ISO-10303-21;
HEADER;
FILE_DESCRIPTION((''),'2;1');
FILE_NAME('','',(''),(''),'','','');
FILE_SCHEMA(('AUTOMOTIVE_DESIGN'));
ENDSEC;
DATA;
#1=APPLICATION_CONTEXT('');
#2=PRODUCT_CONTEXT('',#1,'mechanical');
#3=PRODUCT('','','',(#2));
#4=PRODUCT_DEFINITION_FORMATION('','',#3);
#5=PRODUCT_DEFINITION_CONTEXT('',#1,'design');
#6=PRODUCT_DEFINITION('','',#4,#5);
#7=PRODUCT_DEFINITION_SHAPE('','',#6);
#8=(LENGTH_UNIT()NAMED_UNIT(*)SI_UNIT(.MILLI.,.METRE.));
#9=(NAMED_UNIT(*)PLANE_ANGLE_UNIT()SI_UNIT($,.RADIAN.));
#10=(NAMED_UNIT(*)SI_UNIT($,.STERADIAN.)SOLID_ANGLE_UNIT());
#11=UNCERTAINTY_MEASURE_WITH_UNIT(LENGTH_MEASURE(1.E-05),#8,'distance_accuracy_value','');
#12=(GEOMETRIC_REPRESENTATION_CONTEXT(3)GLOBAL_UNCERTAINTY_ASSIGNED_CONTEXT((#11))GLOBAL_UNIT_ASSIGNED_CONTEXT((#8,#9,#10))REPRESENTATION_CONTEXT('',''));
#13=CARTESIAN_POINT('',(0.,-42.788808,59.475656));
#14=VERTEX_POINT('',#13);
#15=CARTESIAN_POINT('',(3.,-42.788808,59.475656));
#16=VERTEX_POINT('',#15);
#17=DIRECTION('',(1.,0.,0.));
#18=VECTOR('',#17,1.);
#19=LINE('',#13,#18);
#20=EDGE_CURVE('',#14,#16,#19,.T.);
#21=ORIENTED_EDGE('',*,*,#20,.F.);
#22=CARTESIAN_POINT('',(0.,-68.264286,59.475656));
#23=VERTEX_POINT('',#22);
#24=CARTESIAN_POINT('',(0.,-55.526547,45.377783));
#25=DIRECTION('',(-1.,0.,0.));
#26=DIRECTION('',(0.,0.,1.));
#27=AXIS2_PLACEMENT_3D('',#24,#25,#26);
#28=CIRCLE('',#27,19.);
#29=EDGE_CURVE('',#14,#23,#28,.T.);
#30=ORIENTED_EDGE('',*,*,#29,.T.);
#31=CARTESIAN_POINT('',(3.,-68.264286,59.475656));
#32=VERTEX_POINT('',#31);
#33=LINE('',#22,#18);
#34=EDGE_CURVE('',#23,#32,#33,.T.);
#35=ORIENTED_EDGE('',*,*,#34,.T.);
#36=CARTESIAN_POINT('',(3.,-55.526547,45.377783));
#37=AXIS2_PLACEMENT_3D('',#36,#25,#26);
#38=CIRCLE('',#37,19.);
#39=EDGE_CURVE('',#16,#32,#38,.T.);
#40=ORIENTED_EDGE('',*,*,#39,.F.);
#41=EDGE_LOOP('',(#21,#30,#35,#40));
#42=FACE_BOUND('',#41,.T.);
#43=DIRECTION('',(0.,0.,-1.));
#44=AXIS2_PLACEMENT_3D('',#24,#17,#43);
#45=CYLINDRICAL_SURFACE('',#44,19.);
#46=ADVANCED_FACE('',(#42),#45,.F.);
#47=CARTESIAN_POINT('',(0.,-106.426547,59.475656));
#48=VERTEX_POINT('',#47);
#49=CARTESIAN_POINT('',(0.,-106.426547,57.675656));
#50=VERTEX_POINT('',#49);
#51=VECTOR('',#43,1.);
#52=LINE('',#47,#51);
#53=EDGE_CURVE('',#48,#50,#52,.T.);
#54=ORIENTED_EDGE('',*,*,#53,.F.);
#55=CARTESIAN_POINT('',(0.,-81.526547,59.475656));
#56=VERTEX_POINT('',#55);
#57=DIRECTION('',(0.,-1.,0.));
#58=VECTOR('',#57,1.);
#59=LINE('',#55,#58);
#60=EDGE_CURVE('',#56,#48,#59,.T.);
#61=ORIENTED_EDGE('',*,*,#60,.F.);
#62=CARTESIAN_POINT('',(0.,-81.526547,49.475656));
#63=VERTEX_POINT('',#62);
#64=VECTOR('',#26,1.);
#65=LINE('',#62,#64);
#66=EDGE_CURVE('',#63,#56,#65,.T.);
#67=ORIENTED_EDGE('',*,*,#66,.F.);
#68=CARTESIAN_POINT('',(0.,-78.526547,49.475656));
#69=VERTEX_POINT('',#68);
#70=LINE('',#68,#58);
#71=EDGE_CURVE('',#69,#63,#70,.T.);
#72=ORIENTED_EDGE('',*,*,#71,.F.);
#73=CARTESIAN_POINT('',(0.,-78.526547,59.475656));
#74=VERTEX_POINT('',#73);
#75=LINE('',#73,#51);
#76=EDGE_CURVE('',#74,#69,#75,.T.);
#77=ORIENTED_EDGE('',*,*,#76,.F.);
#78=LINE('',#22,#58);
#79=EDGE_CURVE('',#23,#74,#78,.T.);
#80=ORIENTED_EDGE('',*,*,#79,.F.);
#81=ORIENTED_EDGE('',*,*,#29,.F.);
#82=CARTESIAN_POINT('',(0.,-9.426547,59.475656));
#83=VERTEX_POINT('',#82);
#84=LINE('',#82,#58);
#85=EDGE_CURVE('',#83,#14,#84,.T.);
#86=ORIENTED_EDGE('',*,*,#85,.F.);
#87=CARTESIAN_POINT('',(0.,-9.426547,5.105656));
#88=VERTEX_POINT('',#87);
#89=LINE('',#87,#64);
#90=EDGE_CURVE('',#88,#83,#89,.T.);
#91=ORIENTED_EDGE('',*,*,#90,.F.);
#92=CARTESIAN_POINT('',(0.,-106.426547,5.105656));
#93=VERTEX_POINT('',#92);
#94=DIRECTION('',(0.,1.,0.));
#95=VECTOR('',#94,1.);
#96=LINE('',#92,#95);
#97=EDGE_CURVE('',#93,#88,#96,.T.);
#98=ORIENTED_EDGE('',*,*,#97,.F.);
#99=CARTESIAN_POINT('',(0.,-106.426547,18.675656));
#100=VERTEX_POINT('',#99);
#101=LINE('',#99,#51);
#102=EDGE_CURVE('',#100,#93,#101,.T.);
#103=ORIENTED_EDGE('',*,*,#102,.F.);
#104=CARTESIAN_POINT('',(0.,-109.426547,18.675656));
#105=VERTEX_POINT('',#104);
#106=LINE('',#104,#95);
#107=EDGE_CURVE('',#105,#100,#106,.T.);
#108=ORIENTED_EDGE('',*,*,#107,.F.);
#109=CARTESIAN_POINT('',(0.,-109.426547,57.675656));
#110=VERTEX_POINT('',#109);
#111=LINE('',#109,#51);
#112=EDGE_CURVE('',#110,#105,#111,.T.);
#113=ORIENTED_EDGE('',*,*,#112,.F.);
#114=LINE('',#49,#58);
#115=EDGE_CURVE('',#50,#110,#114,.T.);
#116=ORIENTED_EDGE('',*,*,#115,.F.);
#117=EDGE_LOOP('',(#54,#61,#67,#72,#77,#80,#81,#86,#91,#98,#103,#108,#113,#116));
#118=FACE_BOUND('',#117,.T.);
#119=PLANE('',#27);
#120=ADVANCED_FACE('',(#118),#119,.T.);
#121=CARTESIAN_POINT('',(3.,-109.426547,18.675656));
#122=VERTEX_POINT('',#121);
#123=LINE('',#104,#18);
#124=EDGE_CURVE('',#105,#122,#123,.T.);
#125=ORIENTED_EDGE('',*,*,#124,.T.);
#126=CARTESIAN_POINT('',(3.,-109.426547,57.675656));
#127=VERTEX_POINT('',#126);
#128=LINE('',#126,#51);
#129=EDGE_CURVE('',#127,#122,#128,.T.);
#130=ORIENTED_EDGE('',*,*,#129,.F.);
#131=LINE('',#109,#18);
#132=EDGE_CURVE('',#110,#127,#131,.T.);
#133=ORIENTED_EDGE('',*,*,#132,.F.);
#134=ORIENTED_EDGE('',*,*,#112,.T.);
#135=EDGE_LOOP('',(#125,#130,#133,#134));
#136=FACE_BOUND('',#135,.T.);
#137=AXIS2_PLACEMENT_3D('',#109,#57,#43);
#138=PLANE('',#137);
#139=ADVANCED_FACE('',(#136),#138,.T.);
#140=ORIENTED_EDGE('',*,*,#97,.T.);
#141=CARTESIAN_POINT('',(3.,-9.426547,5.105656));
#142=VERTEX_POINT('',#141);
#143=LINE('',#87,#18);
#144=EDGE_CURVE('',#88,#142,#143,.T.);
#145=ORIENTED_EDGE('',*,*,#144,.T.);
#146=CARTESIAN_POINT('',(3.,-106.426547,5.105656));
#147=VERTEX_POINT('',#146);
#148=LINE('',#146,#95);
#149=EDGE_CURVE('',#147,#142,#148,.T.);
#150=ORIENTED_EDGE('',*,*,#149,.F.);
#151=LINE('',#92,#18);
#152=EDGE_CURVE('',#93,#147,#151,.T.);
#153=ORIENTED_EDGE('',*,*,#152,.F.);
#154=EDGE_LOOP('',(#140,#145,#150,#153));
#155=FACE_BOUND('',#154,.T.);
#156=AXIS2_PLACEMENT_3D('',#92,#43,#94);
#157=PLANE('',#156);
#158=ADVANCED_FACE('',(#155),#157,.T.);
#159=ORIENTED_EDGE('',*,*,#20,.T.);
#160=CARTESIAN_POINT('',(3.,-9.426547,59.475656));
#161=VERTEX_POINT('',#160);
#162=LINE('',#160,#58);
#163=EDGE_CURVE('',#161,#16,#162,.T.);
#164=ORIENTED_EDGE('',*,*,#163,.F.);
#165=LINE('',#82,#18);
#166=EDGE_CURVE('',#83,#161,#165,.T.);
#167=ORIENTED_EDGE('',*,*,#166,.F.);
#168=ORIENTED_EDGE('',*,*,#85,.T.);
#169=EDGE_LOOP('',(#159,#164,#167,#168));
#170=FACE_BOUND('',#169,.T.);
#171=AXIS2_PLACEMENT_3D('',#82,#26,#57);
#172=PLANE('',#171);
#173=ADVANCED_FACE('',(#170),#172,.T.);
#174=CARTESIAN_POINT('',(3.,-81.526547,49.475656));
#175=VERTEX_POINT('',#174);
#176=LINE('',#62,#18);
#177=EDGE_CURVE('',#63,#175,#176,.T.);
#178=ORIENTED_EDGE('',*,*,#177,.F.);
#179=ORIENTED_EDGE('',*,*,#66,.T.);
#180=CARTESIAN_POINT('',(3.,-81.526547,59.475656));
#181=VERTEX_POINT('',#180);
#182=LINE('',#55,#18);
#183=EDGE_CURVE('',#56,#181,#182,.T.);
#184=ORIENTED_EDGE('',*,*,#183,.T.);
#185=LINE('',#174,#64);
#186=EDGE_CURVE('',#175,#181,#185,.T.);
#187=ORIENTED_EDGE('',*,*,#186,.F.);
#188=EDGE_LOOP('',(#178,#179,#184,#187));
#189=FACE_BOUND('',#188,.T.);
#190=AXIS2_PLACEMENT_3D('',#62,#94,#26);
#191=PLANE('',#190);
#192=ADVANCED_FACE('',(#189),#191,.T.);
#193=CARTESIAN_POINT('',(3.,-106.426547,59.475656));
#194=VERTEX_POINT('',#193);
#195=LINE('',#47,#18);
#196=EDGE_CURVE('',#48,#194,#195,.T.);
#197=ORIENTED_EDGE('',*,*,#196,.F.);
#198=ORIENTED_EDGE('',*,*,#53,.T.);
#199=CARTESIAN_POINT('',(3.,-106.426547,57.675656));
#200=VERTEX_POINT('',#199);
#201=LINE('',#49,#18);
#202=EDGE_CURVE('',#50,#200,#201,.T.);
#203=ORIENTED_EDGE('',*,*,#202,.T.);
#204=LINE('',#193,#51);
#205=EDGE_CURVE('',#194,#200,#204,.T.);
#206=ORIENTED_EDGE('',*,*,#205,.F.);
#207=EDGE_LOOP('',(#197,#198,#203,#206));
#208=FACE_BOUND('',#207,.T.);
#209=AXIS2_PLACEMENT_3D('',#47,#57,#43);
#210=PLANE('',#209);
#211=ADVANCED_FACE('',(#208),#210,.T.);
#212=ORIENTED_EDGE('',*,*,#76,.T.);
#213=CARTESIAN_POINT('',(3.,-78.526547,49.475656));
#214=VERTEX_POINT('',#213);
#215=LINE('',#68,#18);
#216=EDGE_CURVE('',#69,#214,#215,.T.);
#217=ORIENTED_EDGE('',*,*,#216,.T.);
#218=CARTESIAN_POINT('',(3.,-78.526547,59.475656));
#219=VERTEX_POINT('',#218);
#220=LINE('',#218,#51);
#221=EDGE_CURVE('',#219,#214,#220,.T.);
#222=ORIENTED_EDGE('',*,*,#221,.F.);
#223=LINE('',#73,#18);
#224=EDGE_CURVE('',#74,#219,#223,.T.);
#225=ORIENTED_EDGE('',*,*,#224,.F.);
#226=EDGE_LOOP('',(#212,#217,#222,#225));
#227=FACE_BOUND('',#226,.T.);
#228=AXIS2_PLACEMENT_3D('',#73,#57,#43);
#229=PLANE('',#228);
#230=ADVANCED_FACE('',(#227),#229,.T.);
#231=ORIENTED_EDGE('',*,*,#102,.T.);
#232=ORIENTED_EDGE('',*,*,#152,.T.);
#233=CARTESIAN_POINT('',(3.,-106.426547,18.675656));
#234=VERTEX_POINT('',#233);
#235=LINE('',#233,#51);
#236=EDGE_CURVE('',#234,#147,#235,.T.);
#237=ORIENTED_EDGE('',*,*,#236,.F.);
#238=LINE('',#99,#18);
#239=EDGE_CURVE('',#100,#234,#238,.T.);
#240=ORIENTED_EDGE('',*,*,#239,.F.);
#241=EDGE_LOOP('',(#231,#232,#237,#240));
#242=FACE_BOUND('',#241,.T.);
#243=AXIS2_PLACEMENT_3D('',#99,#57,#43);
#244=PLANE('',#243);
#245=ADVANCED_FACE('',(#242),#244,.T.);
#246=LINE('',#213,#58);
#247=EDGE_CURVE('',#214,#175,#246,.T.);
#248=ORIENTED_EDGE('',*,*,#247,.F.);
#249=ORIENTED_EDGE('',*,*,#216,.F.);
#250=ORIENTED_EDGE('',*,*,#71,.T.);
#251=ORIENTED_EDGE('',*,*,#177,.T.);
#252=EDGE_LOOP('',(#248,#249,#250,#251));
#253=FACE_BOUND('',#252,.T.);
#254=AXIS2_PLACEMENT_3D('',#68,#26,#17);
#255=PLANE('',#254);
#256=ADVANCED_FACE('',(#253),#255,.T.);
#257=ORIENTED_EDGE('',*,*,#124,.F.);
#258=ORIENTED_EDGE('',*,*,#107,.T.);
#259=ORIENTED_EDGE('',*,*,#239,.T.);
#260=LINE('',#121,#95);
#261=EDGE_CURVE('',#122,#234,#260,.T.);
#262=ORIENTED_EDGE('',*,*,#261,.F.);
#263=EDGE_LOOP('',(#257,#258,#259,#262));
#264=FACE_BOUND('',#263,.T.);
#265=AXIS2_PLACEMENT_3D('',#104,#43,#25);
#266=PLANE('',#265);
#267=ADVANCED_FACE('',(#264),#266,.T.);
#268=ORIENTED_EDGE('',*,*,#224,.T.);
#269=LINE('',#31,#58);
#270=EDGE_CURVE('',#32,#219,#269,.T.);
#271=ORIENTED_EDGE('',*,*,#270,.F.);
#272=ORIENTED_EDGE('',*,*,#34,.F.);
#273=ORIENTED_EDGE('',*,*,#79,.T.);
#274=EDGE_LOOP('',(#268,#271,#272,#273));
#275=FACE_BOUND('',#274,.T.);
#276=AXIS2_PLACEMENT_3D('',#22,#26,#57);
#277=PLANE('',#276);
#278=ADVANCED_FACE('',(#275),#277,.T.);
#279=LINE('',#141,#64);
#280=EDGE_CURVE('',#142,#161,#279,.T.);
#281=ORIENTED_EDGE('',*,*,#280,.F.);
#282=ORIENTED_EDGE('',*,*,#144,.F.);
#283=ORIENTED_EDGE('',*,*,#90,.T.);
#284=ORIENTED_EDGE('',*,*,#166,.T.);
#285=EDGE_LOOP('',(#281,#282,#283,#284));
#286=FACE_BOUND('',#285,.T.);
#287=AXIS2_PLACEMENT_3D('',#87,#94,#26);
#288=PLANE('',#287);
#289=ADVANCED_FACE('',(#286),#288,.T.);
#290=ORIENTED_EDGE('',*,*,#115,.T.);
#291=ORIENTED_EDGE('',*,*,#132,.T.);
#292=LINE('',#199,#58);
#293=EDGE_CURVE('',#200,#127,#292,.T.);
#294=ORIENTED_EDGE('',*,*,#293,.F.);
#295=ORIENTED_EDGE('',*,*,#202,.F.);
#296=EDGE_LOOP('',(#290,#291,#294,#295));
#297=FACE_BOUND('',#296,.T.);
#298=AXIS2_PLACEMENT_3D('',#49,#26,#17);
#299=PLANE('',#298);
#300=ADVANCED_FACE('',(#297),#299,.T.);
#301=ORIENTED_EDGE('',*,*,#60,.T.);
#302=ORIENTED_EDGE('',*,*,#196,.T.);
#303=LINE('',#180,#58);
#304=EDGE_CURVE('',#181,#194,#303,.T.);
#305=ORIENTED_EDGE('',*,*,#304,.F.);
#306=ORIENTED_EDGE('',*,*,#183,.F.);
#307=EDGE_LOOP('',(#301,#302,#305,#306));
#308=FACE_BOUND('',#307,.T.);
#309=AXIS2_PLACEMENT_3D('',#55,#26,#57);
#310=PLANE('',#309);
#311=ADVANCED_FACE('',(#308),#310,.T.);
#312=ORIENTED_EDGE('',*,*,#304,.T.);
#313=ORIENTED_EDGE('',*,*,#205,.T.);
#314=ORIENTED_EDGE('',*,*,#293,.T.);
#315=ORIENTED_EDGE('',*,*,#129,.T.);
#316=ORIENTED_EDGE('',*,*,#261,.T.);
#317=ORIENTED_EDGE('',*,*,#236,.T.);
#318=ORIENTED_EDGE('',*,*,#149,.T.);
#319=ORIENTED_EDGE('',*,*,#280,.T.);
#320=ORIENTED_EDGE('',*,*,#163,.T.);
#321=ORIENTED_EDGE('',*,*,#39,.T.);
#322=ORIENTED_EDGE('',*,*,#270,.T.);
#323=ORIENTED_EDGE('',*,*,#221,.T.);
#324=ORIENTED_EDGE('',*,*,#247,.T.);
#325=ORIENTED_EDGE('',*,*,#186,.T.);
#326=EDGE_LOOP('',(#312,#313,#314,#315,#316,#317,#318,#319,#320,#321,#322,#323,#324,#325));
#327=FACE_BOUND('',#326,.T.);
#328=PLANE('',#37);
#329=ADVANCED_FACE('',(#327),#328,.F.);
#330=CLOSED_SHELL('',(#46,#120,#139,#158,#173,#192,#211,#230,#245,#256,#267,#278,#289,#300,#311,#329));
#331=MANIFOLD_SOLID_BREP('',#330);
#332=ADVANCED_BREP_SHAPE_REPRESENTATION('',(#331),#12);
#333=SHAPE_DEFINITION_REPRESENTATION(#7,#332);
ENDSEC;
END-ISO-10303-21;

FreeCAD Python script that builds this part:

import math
import FreeCAD as App
import Part
import Sketcher

doc = App.newDocument("Part")
params = doc.addObject("Spreadsheet::Sheet", "Params")
for row, (alias, value) in enumerate([
    ("sketch1_radius", "19 mm"),
    ("sketch1_width", "3 mm"),
    ("sketch1_width2", "97 mm"),
    ("sketch1_height", "10 mm"),
    ("sketch1_height2", "39 mm"),
    ("pad1_length", "3 mm"),
], start=1):
    params.set(f"A{row}", alias)
    params.set(f"B{row}", "=" + value)
    params.setAlias(f"B{row}", alias)

body = doc.addObject("PartDesign::Body", "Body")

# Sketch on YZ plane
sketch1 = body.newObject("Sketcher::SketchObject", "Sketch")
sketch1.AttachmentSupport = (doc.getObject("YZ_Plane"), [""])
sketch1.MapMode = "FlatFace"
sketch1.AttachmentOffset = App.Placement(App.Vector(0, 0, 3), App.Rotation())
sketch1.addGeometry([
    Part.LineSegment(App.Vector(-9.4, 5.1, 0), App.Vector(-9.4, 59.5, 0)),  # 0
    Part.LineSegment(App.Vector(-9.4, 59.5, 0), App.Vector(-42.8, 59.5, 0)),  # 1
    Part.ArcOfCircle(Part.Circle(App.Vector(-55.5, 45.4, 0), App.Vector(0, 0, 1), 19), math.radians(132), math.radians(408)),  # 2
    Part.LineSegment(App.Vector(-68.3, 59.5, 0), App.Vector(-78.5, 59.5, 0)),  # 3
    Part.LineSegment(App.Vector(-78.5, 59.5, 0), App.Vector(-78.5, 49.5, 0)),  # 4
    Part.LineSegment(App.Vector(-78.5, 49.5, 0), App.Vector(-81.5, 49.5, 0)),  # 5
    Part.LineSegment(App.Vector(-81.5, 49.5, 0), App.Vector(-81.5, 59.5, 0)),  # 6
    Part.LineSegment(App.Vector(-81.5, 59.5, 0), App.Vector(-106.4, 59.5, 0)),  # 7
    Part.LineSegment(App.Vector(-106.4, 59.5, 0), App.Vector(-106.4, 57.7, 0)),  # 8
    Part.LineSegment(App.Vector(-106.4, 57.7, 0), App.Vector(-109.4, 57.7, 0)),  # 9
    Part.LineSegment(App.Vector(-109.4, 57.7, 0), App.Vector(-109.4, 18.7, 0)),  # 10
    Part.LineSegment(App.Vector(-109.4, 18.7, 0), App.Vector(-106.4, 18.7, 0)),  # 11
    Part.LineSegment(App.Vector(-106.4, 18.7, 0), App.Vector(-106.4, 5.1, 0)),  # 12
    Part.LineSegment(App.Vector(-106.4, 5.1, 0), App.Vector(-9.4, 5.1, 0)),  # 13
], False)
sketch1.addConstraint([
    Sketcher.Constraint("Coincident", 0, 2, 1, 1),
    Sketcher.Constraint("Coincident", 1, 2, 2, 2),
    Sketcher.Constraint("Coincident", 2, 1, 3, 1),
    Sketcher.Constraint("Coincident", 3, 2, 4, 1),
    Sketcher.Constraint("Coincident", 4, 2, 5, 1),
    Sketcher.Constraint("Coincident", 5, 2, 6, 1),
    Sketcher.Constraint("Coincident", 6, 2, 7, 1),
    Sketcher.Constraint("Coincident", 7, 2, 8, 1),
    Sketcher.Constraint("Coincident", 8, 2, 9, 1),
    Sketcher.Constraint("Coincident", 9, 2, 10, 1),
    Sketcher.Constraint("Coincident", 10, 2, 11, 1),
    Sketcher.Constraint("Coincident", 11, 2, 12, 1),
    Sketcher.Constraint("Coincident", 12, 2, 13, 1),
    Sketcher.Constraint("Coincident", 13, 2, 0, 1),
    Sketcher.Constraint("Vertical", 0),
    Sketcher.Constraint("Horizontal", 1),
    Sketcher.Constraint("Horizontal", 3),
    Sketcher.Constraint("Vertical", 4),
    Sketcher.Constraint("Horizontal", 5),
    Sketcher.Constraint("Vertical", 6),
    Sketcher.Constraint("Horizontal", 7),
    Sketcher.Constraint("Vertical", 8),
    Sketcher.Constraint("Horizontal", 9),
    Sketcher.Constraint("Vertical", 10),
    Sketcher.Constraint("Horizontal", 11),
    Sketcher.Constraint("Vertical", 12),
    Sketcher.Constraint("Horizontal", 13),
    Sketcher.Constraint("Horizontal", 1, 2, 2, 1),
    Sketcher.Constraint("Horizontal", 3, 2, 6, 2),
    Sketcher.Constraint("Vertical", 8, 2, 11, 2),
    Sketcher.Constraint("Equal", 5, 9),
    Sketcher.Constraint("Radius", 2, 19.0),
    Sketcher.Constraint("DistanceX", 5, 2, 5, 1, 3.0),
    Sketcher.Constraint("DistanceX", 13, 1, 13, 2, 97.0),
    Sketcher.Constraint("DistanceY", 4, 2, 4, 1, 10.0),
    Sketcher.Constraint("DistanceY", 10, 2, 10, 1, 39.0),
    Sketcher.Constraint("DistanceX", 7, 2, 7, 1, 24.9),
    Sketcher.Constraint("DistanceY", 8, 2, 8, 1, 1.8),
    Sketcher.Constraint("DistanceX", 3, 2, 2, 3, 23.0),
    Sketcher.Constraint("DistanceY", 0, 1, 0, 2, 54.37),
    Sketcher.Constraint("DistanceX", 1, 2, 1, 1, 33.362261),
    Sketcher.Constraint("DistanceX", 2, 3, -1, 1, 55.526547),
    Sketcher.Constraint("DistanceY", -1, 1, 2, 3, 45.377783),
])
sketch1.setExpression("Constraints[31]", "Params.sketch1_radius")
sketch1.setExpression("Constraints[32]", "Params.sketch1_width")
sketch1.setExpression("Constraints[33]", "Params.sketch1_width2")
sketch1.setExpression("Constraints[34]", "Params.sketch1_height")
sketch1.setExpression("Constraints[35]", "Params.sketch1_height2")
pad1 = body.newObject("PartDesign::Pad", "Pad")
pad1.Profile = sketch1
pad1.setExpression("Length", "Params.pad1_length")
pad1.Reversed = True

doc.recompute()
